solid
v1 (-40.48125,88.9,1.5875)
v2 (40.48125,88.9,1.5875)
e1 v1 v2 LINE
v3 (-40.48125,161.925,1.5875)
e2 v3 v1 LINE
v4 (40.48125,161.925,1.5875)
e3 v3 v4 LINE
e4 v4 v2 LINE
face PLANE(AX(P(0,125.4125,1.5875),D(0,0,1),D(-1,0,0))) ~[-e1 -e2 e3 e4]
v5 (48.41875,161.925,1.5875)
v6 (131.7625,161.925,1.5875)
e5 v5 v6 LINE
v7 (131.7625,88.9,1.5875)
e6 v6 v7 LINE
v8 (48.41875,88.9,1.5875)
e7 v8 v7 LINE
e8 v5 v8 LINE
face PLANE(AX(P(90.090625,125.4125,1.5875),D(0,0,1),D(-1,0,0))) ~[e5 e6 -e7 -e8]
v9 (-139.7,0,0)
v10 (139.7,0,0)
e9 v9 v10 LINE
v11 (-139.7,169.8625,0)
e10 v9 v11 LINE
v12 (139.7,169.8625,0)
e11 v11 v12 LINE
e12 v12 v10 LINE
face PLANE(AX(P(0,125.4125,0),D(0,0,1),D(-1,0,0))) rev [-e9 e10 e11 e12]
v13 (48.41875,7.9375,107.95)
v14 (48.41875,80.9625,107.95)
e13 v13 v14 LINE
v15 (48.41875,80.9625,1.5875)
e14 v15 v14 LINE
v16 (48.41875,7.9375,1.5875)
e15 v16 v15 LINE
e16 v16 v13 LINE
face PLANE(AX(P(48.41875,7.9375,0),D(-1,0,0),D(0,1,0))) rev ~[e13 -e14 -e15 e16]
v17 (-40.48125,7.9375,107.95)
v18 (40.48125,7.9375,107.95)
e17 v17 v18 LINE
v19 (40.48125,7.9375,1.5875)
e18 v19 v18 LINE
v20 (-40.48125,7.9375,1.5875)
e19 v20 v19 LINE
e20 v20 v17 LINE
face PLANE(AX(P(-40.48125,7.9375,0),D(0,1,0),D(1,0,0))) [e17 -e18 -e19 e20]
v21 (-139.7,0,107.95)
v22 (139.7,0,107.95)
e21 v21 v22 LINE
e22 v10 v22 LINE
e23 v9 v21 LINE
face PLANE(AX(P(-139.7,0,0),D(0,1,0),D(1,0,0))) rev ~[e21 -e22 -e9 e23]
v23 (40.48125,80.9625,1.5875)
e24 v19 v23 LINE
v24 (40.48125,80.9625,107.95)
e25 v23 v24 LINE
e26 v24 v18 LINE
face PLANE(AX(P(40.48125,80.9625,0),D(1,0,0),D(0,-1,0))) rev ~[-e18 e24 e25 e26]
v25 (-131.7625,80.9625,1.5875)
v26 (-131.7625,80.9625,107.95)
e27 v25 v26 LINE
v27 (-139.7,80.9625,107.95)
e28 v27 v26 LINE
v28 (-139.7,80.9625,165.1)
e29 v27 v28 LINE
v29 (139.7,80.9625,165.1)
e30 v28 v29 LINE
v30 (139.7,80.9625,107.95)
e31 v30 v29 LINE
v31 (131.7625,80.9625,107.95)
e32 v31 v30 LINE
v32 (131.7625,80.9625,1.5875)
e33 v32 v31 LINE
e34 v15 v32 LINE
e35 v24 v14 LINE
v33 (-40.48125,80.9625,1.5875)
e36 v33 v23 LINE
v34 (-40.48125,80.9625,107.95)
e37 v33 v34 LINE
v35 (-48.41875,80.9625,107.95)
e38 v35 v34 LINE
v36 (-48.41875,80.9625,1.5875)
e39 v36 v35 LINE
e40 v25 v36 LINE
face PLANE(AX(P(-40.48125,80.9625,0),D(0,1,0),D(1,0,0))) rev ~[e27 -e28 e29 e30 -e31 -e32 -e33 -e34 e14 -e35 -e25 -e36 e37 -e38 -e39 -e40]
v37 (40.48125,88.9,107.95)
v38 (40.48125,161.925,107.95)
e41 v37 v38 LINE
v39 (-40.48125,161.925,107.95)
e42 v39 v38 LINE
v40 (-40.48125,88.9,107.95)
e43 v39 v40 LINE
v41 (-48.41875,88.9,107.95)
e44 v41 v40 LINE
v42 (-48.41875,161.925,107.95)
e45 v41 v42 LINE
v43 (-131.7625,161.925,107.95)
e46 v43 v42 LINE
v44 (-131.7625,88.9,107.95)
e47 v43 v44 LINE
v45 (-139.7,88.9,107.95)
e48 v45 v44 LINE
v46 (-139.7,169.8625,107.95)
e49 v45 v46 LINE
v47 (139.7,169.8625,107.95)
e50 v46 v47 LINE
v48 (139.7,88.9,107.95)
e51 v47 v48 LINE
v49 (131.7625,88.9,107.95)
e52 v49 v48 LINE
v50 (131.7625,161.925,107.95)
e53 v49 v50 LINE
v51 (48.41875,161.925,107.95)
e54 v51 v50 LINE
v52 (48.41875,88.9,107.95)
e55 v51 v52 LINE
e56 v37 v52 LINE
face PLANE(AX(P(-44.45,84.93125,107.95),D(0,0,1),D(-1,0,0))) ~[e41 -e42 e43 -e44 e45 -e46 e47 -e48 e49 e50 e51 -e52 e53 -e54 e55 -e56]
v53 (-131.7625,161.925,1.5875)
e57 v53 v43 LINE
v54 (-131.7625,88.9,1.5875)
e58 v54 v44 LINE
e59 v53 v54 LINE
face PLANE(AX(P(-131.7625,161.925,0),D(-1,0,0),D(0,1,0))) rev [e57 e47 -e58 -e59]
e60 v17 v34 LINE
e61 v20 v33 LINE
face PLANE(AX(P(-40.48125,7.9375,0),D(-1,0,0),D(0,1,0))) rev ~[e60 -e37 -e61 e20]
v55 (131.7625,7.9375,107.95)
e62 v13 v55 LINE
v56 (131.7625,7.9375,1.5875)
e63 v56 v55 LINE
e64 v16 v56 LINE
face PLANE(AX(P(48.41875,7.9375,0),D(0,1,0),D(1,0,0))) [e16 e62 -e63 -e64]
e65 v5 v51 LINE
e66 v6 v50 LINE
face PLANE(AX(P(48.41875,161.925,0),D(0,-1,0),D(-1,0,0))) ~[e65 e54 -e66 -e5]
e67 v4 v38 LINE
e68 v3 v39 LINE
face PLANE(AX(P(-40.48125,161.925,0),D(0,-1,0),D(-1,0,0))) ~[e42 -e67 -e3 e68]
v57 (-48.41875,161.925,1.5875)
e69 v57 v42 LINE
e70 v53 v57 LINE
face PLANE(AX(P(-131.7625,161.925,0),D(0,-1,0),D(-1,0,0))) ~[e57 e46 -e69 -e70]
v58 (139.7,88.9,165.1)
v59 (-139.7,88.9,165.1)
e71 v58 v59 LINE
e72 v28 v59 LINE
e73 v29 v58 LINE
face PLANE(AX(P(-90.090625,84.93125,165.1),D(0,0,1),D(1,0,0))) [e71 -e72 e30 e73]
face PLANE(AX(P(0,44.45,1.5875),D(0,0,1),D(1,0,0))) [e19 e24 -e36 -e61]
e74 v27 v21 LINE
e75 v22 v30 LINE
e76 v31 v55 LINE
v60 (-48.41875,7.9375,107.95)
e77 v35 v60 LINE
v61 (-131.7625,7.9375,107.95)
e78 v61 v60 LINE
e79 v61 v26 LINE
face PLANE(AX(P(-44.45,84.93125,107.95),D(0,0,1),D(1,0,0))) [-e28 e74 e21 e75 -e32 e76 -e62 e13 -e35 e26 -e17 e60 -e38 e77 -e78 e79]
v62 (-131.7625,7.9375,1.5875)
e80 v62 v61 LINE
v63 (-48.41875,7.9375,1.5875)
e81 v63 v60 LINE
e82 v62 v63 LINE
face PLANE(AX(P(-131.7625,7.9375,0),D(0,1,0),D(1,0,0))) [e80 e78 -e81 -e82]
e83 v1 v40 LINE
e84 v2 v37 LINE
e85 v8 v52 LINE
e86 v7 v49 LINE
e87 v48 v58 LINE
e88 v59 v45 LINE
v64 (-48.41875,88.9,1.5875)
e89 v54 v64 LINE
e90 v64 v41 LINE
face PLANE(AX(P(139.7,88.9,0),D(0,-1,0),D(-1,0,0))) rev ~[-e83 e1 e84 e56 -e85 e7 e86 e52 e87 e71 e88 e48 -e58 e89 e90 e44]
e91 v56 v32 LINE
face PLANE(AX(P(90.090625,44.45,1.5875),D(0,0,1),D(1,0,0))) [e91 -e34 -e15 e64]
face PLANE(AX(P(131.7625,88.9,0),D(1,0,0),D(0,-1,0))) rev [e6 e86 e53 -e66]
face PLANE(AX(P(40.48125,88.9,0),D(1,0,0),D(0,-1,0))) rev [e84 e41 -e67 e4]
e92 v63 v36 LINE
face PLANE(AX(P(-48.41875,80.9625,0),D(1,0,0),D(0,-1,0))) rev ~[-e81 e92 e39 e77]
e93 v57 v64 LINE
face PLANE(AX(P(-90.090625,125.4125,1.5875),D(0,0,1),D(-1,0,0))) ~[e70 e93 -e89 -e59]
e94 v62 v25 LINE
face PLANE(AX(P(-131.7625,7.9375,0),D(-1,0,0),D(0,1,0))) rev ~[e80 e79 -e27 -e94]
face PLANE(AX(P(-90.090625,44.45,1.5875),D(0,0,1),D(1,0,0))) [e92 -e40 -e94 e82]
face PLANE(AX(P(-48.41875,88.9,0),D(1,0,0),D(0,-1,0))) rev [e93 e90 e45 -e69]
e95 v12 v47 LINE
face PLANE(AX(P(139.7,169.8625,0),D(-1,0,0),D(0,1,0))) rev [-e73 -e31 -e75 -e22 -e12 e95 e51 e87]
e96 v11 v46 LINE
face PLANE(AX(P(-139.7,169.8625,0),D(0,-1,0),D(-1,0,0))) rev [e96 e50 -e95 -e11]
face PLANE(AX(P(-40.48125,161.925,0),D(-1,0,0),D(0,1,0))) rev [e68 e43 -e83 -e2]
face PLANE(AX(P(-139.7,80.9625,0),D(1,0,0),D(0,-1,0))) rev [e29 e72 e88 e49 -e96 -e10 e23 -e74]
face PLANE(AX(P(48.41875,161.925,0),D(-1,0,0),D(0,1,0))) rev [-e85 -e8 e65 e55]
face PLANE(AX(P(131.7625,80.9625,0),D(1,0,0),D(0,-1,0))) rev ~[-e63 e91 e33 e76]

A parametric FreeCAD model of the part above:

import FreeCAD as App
import Part
import Sketcher
from FreeCAD import Vector
Q = App.Units.Quantity

doc = App.newDocument("Part")
body = doc.addObject("PartDesign::Body", "Body")

# Sketch on XY plane
sketch1 = doc.addObject("Sketcher::SketchObject", "Sketch")
body.addObject(sketch1)
sketch1.AttachmentSupport = (doc.XY_Plane, [""])
sketch1.MapMode = "FlatFace"
sketch1.addGeometry(Part.LineSegment(Vector(-140, 89, 0), Vector(-140, 81, 0)), False)
sketch1.addGeometry(Part.LineSegment(Vector(-140, 81, 0), Vector(140, 81, 0)), False)
sketch1.addGeometry(Part.LineSegment(Vector(140, 81, 0), Vector(140, 89, 0)), False)
sketch1.addGeometry(Part.LineSegment(Vector(140, 89, 0), Vector(-140, 89, 0)), False)
sketch1.addConstraint(Sketcher.Constraint("Coincident", 0, 2, 1, 1))
sketch1.addConstraint(Sketcher.Constraint("Coincident", 1, 2, 2, 1))
sketch1.addConstraint(Sketcher.Constraint("Coincident", 2, 2, 3, 1))
sketch1.addConstraint(Sketcher.Constraint("Coincident", 3, 2, 0, 1))
sketch1.addConstraint(Sketcher.Constraint("Vertical", 0))
sketch1.addConstraint(Sketcher.Constraint("Horizontal", 1))
sketch1.addConstraint(Sketcher.Constraint("Vertical", 2))
sketch1.addConstraint(Sketcher.Constraint("Horizontal", 3))
sketch1.addConstraint(Sketcher.Constraint("DistanceX", 1, 1, 1, 2, Q("11 in")))
sketch1.addConstraint(Sketcher.Constraint("DistanceX", 0, 2, -1, 1, Q("5.5 in")))
sketch1.addConstraint(Sketcher.Constraint("DistanceY", -1, 1, 2, 2, Q("3.5 in")))
sketch1.addConstraint(Sketcher.Constraint("DistanceY", 0, 2, 0, 1, Q("0.3125 in")))
pad1 = doc.addObject("PartDesign::Pad", "Pad")
body.addObject(pad1)
pad1.Profile = sketch1
pad1.Length = Q("6.5 in")
body2 = doc.addObject("PartDesign::Body", "Body001")

# Sketch on XY plane
sketch2 = doc.addObject("Sketcher::SketchObject", "Sketch001")
body2.addObject(sketch2)
sketch2.AttachmentSupport = (doc.getObject("XY_Plane001"), [""])
sketch2.MapMode = "FlatFace"
sketch2.addGeometry(Part.LineSegment(Vector(-132, 81, 0), Vector(-132, 8, 0)), False)
sketch2.addGeometry(Part.LineSegment(Vector(-132, 8, 0), Vector(-48, 8, 0)), False)
sketch2.addGeometry(Part.LineSegment(Vector(-48, 8, 0), Vector(-48, 81, 0)), False)
sketch2.addGeometry(Part.LineSegment(Vector(-48, 81, 0), Vector(-132, 81, 0)), False)
sketch2.addConstraint(Sketcher.Constraint("Coincident", 0, 2, 1, 1))
sketch2.addConstraint(Sketcher.Constraint("Coincident", 1, 2, 2, 1))
sketch2.addConstraint(Sketcher.Constraint("Coincident", 2, 2, 3, 1))
sketch2.addConstraint(Sketcher.Constraint("Coincident", 3, 2, 0, 1))
sketch2.addConstraint(Sketcher.Constraint("Vertical", 0))
sketch2.addConstraint(Sketcher.Constraint("Horizontal", 1))
sketch2.addConstraint(Sketcher.Constraint("Vertical", 2))
sketch2.addConstraint(Sketcher.Constraint("Horizontal", 3))
sketch2.addConstraint(Sketcher.Constraint("DistanceX", 1, 1, 1, 2, Q("3.28125 in")))
sketch2.addConstraint(Sketcher.Constraint("DistanceY", 0, 2, 0, 1, Q("2.875 in")))
sketch2.addConstraint(Sketcher.Constraint("DistanceX", 0, 2, -1, 1, Q("5.1875 in")))
sketch2.addConstraint(Sketcher.Constraint("DistanceY", -1, 1, 0, 2, Q("0.3125 in")))
pad2 = doc.addObject("PartDesign::Pad", "Pad001")
body2.addObject(pad2)
pad2.Profile = sketch2
pad2.Length = Q("0.0625 in")
body3 = doc.addObject("PartDesign::Body", "Body002")

# Sketch on XY plane
sketch3 = doc.addObject("Sketcher::SketchObject", "Sketch002")
body3.addObject(sketch3)
sketch3.AttachmentSupport = (doc.getObject("XY_Plane002"), [""])
sketch3.MapMode = "FlatFace"
sketch3.addGeometry(Part.LineSegment(Vector(-40, 81, 0), Vector(-40, 8, 0)), False)
sketch3.addGeometry(Part.LineSegment(Vector(-40, 8, 0), Vector(40, 8, 0)), False)
sketch3.addGeometry(Part.LineSegment(Vector(40, 8, 0), Vector(40, 81, 0)), False)
sketch3.addGeometry(Part.LineSegment(Vector(40, 81, 0), Vector(-40, 81, 0)), False)
sketch3.addConstraint(Sketcher.Constraint("Coincident", 0, 2, 1, 1))
sketch3.addConstraint(Sketcher.Constraint("Coincident", 1, 2, 2, 1))
sketch3.addConstraint(Sketcher.Constraint("Coincident", 2, 2, 3, 1))
sketch3.addConstraint(Sketcher.Constraint("Coincident", 3, 2, 0, 1))
sketch3.addConstraint(Sketcher.Constraint("Vertical", 0))
sketch3.addConstraint(Sketcher.Constraint("Horizontal", 1))
sketch3.addConstraint(Sketcher.Constraint("Vertical", 2))
sketch3.addConstraint(Sketcher.Constraint("Horizontal", 3))
sketch3.addConstraint(Sketcher.Constraint("DistanceX", 1, 1, 1, 2, Q("3.1875 in")))
sketch3.addConstraint(Sketcher.Constraint("DistanceY", 0, 2, 0, 1, Q("2.875 in")))
sketch3.addConstraint(Sketcher.Constraint("DistanceX", 0, 2, -1, 1, Q("1.59375 in")))
sketch3.addConstraint(Sketcher.Constraint("DistanceY", -1, 1, 0, 2, Q("0.3125 in")))
pad3 = doc.addObject("PartDesign::Pad", "Pad002")
body3.addObject(pad3)
pad3.Profile = sketch3
pad3.Length = Q("0.0625 in")
body4 = doc.addObject("PartDesign::Body", "Body003")

# Sketch on XY plane
sketch4 = doc.addObject("Sketcher::SketchObject", "Sketch003")
body4.addObject(sketch4)
sketch4.AttachmentSupport = (doc.getObject("XY_Plane003"), [""])
sketch4.MapMode = "FlatFace"
sketch4.addGeometry(Part.LineSegment(Vector(48, 81, 0), Vector(48, 8, 0)), False)
sketch4.addGeometry(Part.LineSegment(Vector(48, 8, 0), Vector(132, 8, 0)), False)
sketch4.addGeometry(Part.LineSegment(Vector(132, 8, 0), Vector(132, 81, 0)), False)
sketch4.addGeometry(Part.LineSegment(Vector(132, 81, 0), Vector(48, 81, 0)), False)
sketch4.addConstraint(Sketcher.Constraint("Coincident", 0, 2, 1, 1))
sketch4.addConstraint(Sketcher.Constraint("Coincident", 1, 2, 2, 1))
sketch4.addConstraint(Sketcher.Constraint("Coincident", 2, 2, 3, 1))
sketch4.addConstraint(Sketcher.Constraint("Coincident", 3, 2, 0, 1))
sketch4.addConstraint(Sketcher.Constraint("Vertical", 0))
sketch4.addConstraint(Sketcher.Constraint("Horizontal", 1))
sketch4.addConstraint(Sketcher.Constraint("Vertical", 2))
sketch4.addConstraint(Sketcher.Constraint("Horizontal", 3))
sketch4.addConstraint(Sketcher.Constraint("DistanceX", 1, 1, 1, 2, Q("3.28125 in")))
sketch4.addConstraint(Sketcher.Constraint("DistanceY", 0, 2, 0, 1, Q("2.875 in")))
sketch4.addConstraint(Sketcher.Constraint("DistanceX", -1, 1, 0, 2, Q("1.90625 in")))
sketch4.addConstraint(Sketcher.Constraint("DistanceY", -1, 1, 0, 2, Q("0.3125 in")))
pad4 = doc.addObject("PartDesign::Pad", "Pad003")
body4.addObject(pad4)
pad4.Profile = sketch4
pad4.Length = Q("0.0625 in")
body5 = doc.addObject("PartDesign::Body", "Body004")

# Sketch on XY plane
sketch5 = doc.addObject("Sketcher::SketchObject", "Sketch004")
body5.addObject(sketch5)
sketch5.AttachmentSupport = (doc.getObject("XY_Plane004"), [""])
sketch5.MapMode = "FlatFace"
sketch5.addGeometry(Part.LineSegment(Vector(-140, 89, 0), Vector(-140, 0, 0)), False)
sketch5.addGeometry(Part.LineSegment(Vector(-140, 0, 0), Vector(140, 0, 0)), False)
sketch5.addGeometry(Part.LineSegment(Vector(140, 0, 0), Vector(140, 89, 0)), False)
sketch5.addGeometry(Part.LineSegment(Vector(140, 89, 0), Vector(-140, 89, 0)), False)
sketch5.addGeometry(Part.LineSegment(Vector(-48, 81, 0), Vector(-48, 8, 0)), False)
sketch5.addGeometry(Part.LineSegment(Vector(-48, 8, 0), Vector(-132, 8, 0)), False)
sketch5.addGeometry(Part.LineSegment(Vector(-132, 8, 0), Vector(-132, 81, 0)), False)
sketch5.addGeometry(Part.LineSegment(Vector(-132, 81, 0), Vector(-48, 81, 0)), False)
sketch5.addGeometry(Part.LineSegment(Vector(132, 81, 0), Vector(132, 8, 0)), False)
sketch5.addGeometry(Part.LineSegment(Vector(132, 8, 0), Vector(48, 8, 0)), False)
sketch5.addGeometry(Part.LineSegment(Vector(48, 8, 0), Vector(48, 81, 0)), False)
sketch5.addGeometry(Part.LineSegment(Vector(48, 81, 0), Vector(132, 81, 0)), False)
sketch5.addGeometry(Part.LineSegment(Vector(-40, 8, 0), Vector(-40, 81, 0)), False)
sketch5.addGeometry(Part.LineSegment(Vector(-40, 81, 0), Vector(40, 81, 0)), False)
sketch5.addGeometry(Part.LineSegment(Vector(40, 81, 0), Vector(40, 8, 0)), False)
sketch5.addGeometry(Part.LineSegment(Vector(40, 8, 0), Vector(-40, 8, 0)), False)
sketch5.addConstraint(Sketcher.Constraint("Coincident", 0, 2, 1, 1))
sketch5.addConstraint(Sketcher.Constraint("Coincident", 1, 2, 2, 1))
sketch5.addConstraint(Sketcher.Constraint("Coincident", 2, 2, 3, 1))
sketch5.addConstraint(Sketcher.Constraint("Coincident", 3, 2, 0, 1))
sketch5.addConstraint(Sketcher.Constraint("Coincident", 4, 2, 5, 1))
sketch5.addConstraint(Sketcher.Constraint("Coincident", 5, 2, 6, 1))
sketch5.addConstraint(Sketcher.Constraint("Coincident", 6, 2, 7, 1))
sketch5.addConstraint(Sketcher.Constraint("Coincident", 7, 2, 4, 1))
sketch5.addConstraint(Sketcher.Constraint("Coincident", 8, 2, 9, 1))
sketch5.addConstraint(Sketcher.Constraint("Coincident", 9, 2, 10, 1))
sketch5.addConstraint(Sketcher.Constraint("Coincident", 10, 2, 11, 1))
sketch5.addConstraint(Sketcher.Constraint("Coincident", 11, 2, 8, 1))
sketch5.addConstraint(Sketcher.Constraint("Coincident", 12, 2, 13, 1))
sketch5.addConstraint(Sketcher.Constraint("Coincident", 13, 2, 14, 1))
sketch5.addConstraint(Sketcher.Constraint("Coincident", 14, 2, 15, 1))
sketch5.addConstraint(Sketcher.Constraint("Coincident", 15, 2, 12, 1))
sketch5.addConstraint(Sketcher.Constraint("Vertical", 0))
sketch5.addConstraint(Sketcher.Constraint("Horizontal", 1))
sketch5.addConstraint(Sketcher.Constraint("Vertical", 2))
sketch5.addConstraint(Sketcher.Constraint("Horizontal", 3))
sketch5.addConstraint(Sketcher.Constraint("Vertical", 4))
sketch5.addConstraint(Sketcher.Constraint("Horizontal", 5))
sketch5.addConstraint(Sketcher.Constraint("Vertical", 6))
sketch5.addConstraint(Sketcher.Constraint("Horizontal", 7))
sketch5.addConstraint(Sketcher.Constraint("Vertical", 8))
sketch5.addConstraint(Sketcher.Constraint("Horizontal", 9))
sketch5.addConstraint(Sketcher.Constraint("Vertical", 10))
sketch5.addConstraint(Sketcher.Constraint("Horizontal", 11))
sketch5.addConstraint(Sketcher.Constraint("Vertical", 12))
sketch5.addConstraint(Sketcher.Constraint("Horizontal", 13))
sketch5.addConstraint(Sketcher.Constraint("Vertical", 14))
sketch5.addConstraint(Sketcher.Constraint("Horizontal", 15))
sketch5.addConstraint(Sketcher.Constraint("Symmetric", 0, 2, 1, 2, -1, 1))
sketch5.addConstraint(Sketcher.Constraint("Symmetric", 5, 2, 8, 2, -2))
sketch5.addConstraint(Sketcher.Constraint("Symmetric", 7, 2, 10, 2, -2))
sketch5.addConstraint(Sketcher.Constraint("Horizontal", 11, 2, 12, 2))
sketch5.addConstraint(Sketcher.Constraint("Horizontal", 9, 2, 14, 2))
sketch5.addConstraint(Sketcher.Constraint("DistanceX", 1, 1, 1, 2, Q("11 in")))
sketch5.addConstraint(Sketcher.Constraint("DistanceY", 0, 2, 0, 1, Q("3.5 in")))
sketch5.addConstraint(Sketcher.Constraint("DistanceX", 12, 2, 10, 2, Q("3.5 in")))
sketch5.addConstraint(Sketcher.Constraint("DistanceX", 7, 2, 13, 2, Q("3.5 in")))
sketch5.addConstraint(Sketcher.Constraint("DistanceX", 5, 2, 5, 1, Q("3.28125 in")))
sketch5.addConstraint(Sketcher.Constraint("DistanceX", 13, 1, 13, 2, Q("3.1875 in")))
sketch5.addConstraint(Sketcher.Constraint("DistanceY", 4, 2, 4, 1, Q("2.875 in")))
sketch5.addConstraint(Sketcher.Constraint("DistanceY", -1, 1, 4, 2, Q("0.3125 in")))
pad5 = doc.addObject("PartDesign::Pad", "Pad004")
body5.addObject(pad5)
pad5.Profile = sketch5
pad5.Length = Q("4.25 in")
doc.recompute()

boolean = doc.addObject("PartDesign::Boolean", "Boolean")
body.addObject(boolean)
boolean.Type = "Fuse"
boolean.addObjects([body4])
doc.recompute()

boolean2 = doc.addObject("PartDesign::Boolean", "Boolean001")
body.addObject(boolean2)
boolean2.Type = "Fuse"
boolean2.addObjects([body2])
doc.recompute()

boolean3 = doc.addObject("PartDesign::Boolean", "Boolean002")
body.addObject(boolean3)
boolean3.Type = "Fuse"
boolean3.addObjects([body5])
doc.recompute()

boolean4 = doc.addObject("PartDesign::Boolean", "Boolean003")
body.addObject(boolean4)
boolean4.Type = "Fuse"
boolean4.addObjects([body3])
body6 = doc.addObject("PartDesign::Body", "Body005")
doc.recompute()

body6.BaseFeature = body
doc.recompute()

mirroring = doc.addObject("Part::Mirroring", "Mirroring")
mirroring.Source = body
mirroring.Base = Vector(0, 84.93125, 0)
mirroring.Normal = Vector(0, -1, 0)
body7 = doc.addObject("PartDesign::Body", "Body006")
body7.BaseFeature = mirroring
boolean5 = doc.addObject("PartDesign::Boolean", "Boolean004")
body6.addObject(boolean5)
boolean5.Type = "Fuse"
boolean5.addObjects([body7])
doc.recompute()
mirroring.Visibility = False

doc.recompute()
